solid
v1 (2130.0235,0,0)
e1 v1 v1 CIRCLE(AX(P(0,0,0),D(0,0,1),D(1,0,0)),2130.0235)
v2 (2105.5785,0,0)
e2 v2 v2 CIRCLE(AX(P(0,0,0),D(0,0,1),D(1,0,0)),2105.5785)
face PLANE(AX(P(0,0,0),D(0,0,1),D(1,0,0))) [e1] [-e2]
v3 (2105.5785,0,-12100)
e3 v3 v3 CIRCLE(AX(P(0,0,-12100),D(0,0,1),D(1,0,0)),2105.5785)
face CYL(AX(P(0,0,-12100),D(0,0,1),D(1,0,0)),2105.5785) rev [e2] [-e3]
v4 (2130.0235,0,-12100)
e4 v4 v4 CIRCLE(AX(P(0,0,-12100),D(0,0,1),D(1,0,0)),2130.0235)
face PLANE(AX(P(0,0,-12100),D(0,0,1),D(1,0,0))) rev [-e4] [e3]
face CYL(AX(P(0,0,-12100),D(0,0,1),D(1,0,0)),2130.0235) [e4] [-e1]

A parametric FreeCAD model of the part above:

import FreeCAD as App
import Part
import Sketcher
from FreeCAD import Vector
Q = App.Units.Quantity

doc = App.newDocument("Part")
body = doc.addObject("PartDesign::Body", "Body")

# Sketch on XY plane
sketch1 = body.newObject("Sketcher::SketchObject", "Sketch")
sketch1.AttachmentSupport = (doc.getObject("XY_Plane"), [""])
sketch1.MapMode = "FlatFace"
sketch1.addGeometry([
    Part.Circle(Vector(0, 0, 0), Vector(0, 0, 1), 2130),
    Part.Circle(Vector(0, 0, 0), Vector(0, 0, 1), 2106),
], False)
sketch1.addConstraint([
    Sketcher.Constraint("Coincident", 0, 3, -1, 1),
    Sketcher.Constraint("Coincident", 1, 3, -1, 1),
    Sketcher.Constraint("Diameter", 0, Q("4260.047 mm")),
    Sketcher.Constraint("Diameter", 1, Q("4211.157 mm")),
])
pad1 = body.newObject("PartDesign::Pad", "Pad")
pad1.Profile = sketch1
pad1.Length = 12100
pad1.Reversed = True

doc.recompute()
